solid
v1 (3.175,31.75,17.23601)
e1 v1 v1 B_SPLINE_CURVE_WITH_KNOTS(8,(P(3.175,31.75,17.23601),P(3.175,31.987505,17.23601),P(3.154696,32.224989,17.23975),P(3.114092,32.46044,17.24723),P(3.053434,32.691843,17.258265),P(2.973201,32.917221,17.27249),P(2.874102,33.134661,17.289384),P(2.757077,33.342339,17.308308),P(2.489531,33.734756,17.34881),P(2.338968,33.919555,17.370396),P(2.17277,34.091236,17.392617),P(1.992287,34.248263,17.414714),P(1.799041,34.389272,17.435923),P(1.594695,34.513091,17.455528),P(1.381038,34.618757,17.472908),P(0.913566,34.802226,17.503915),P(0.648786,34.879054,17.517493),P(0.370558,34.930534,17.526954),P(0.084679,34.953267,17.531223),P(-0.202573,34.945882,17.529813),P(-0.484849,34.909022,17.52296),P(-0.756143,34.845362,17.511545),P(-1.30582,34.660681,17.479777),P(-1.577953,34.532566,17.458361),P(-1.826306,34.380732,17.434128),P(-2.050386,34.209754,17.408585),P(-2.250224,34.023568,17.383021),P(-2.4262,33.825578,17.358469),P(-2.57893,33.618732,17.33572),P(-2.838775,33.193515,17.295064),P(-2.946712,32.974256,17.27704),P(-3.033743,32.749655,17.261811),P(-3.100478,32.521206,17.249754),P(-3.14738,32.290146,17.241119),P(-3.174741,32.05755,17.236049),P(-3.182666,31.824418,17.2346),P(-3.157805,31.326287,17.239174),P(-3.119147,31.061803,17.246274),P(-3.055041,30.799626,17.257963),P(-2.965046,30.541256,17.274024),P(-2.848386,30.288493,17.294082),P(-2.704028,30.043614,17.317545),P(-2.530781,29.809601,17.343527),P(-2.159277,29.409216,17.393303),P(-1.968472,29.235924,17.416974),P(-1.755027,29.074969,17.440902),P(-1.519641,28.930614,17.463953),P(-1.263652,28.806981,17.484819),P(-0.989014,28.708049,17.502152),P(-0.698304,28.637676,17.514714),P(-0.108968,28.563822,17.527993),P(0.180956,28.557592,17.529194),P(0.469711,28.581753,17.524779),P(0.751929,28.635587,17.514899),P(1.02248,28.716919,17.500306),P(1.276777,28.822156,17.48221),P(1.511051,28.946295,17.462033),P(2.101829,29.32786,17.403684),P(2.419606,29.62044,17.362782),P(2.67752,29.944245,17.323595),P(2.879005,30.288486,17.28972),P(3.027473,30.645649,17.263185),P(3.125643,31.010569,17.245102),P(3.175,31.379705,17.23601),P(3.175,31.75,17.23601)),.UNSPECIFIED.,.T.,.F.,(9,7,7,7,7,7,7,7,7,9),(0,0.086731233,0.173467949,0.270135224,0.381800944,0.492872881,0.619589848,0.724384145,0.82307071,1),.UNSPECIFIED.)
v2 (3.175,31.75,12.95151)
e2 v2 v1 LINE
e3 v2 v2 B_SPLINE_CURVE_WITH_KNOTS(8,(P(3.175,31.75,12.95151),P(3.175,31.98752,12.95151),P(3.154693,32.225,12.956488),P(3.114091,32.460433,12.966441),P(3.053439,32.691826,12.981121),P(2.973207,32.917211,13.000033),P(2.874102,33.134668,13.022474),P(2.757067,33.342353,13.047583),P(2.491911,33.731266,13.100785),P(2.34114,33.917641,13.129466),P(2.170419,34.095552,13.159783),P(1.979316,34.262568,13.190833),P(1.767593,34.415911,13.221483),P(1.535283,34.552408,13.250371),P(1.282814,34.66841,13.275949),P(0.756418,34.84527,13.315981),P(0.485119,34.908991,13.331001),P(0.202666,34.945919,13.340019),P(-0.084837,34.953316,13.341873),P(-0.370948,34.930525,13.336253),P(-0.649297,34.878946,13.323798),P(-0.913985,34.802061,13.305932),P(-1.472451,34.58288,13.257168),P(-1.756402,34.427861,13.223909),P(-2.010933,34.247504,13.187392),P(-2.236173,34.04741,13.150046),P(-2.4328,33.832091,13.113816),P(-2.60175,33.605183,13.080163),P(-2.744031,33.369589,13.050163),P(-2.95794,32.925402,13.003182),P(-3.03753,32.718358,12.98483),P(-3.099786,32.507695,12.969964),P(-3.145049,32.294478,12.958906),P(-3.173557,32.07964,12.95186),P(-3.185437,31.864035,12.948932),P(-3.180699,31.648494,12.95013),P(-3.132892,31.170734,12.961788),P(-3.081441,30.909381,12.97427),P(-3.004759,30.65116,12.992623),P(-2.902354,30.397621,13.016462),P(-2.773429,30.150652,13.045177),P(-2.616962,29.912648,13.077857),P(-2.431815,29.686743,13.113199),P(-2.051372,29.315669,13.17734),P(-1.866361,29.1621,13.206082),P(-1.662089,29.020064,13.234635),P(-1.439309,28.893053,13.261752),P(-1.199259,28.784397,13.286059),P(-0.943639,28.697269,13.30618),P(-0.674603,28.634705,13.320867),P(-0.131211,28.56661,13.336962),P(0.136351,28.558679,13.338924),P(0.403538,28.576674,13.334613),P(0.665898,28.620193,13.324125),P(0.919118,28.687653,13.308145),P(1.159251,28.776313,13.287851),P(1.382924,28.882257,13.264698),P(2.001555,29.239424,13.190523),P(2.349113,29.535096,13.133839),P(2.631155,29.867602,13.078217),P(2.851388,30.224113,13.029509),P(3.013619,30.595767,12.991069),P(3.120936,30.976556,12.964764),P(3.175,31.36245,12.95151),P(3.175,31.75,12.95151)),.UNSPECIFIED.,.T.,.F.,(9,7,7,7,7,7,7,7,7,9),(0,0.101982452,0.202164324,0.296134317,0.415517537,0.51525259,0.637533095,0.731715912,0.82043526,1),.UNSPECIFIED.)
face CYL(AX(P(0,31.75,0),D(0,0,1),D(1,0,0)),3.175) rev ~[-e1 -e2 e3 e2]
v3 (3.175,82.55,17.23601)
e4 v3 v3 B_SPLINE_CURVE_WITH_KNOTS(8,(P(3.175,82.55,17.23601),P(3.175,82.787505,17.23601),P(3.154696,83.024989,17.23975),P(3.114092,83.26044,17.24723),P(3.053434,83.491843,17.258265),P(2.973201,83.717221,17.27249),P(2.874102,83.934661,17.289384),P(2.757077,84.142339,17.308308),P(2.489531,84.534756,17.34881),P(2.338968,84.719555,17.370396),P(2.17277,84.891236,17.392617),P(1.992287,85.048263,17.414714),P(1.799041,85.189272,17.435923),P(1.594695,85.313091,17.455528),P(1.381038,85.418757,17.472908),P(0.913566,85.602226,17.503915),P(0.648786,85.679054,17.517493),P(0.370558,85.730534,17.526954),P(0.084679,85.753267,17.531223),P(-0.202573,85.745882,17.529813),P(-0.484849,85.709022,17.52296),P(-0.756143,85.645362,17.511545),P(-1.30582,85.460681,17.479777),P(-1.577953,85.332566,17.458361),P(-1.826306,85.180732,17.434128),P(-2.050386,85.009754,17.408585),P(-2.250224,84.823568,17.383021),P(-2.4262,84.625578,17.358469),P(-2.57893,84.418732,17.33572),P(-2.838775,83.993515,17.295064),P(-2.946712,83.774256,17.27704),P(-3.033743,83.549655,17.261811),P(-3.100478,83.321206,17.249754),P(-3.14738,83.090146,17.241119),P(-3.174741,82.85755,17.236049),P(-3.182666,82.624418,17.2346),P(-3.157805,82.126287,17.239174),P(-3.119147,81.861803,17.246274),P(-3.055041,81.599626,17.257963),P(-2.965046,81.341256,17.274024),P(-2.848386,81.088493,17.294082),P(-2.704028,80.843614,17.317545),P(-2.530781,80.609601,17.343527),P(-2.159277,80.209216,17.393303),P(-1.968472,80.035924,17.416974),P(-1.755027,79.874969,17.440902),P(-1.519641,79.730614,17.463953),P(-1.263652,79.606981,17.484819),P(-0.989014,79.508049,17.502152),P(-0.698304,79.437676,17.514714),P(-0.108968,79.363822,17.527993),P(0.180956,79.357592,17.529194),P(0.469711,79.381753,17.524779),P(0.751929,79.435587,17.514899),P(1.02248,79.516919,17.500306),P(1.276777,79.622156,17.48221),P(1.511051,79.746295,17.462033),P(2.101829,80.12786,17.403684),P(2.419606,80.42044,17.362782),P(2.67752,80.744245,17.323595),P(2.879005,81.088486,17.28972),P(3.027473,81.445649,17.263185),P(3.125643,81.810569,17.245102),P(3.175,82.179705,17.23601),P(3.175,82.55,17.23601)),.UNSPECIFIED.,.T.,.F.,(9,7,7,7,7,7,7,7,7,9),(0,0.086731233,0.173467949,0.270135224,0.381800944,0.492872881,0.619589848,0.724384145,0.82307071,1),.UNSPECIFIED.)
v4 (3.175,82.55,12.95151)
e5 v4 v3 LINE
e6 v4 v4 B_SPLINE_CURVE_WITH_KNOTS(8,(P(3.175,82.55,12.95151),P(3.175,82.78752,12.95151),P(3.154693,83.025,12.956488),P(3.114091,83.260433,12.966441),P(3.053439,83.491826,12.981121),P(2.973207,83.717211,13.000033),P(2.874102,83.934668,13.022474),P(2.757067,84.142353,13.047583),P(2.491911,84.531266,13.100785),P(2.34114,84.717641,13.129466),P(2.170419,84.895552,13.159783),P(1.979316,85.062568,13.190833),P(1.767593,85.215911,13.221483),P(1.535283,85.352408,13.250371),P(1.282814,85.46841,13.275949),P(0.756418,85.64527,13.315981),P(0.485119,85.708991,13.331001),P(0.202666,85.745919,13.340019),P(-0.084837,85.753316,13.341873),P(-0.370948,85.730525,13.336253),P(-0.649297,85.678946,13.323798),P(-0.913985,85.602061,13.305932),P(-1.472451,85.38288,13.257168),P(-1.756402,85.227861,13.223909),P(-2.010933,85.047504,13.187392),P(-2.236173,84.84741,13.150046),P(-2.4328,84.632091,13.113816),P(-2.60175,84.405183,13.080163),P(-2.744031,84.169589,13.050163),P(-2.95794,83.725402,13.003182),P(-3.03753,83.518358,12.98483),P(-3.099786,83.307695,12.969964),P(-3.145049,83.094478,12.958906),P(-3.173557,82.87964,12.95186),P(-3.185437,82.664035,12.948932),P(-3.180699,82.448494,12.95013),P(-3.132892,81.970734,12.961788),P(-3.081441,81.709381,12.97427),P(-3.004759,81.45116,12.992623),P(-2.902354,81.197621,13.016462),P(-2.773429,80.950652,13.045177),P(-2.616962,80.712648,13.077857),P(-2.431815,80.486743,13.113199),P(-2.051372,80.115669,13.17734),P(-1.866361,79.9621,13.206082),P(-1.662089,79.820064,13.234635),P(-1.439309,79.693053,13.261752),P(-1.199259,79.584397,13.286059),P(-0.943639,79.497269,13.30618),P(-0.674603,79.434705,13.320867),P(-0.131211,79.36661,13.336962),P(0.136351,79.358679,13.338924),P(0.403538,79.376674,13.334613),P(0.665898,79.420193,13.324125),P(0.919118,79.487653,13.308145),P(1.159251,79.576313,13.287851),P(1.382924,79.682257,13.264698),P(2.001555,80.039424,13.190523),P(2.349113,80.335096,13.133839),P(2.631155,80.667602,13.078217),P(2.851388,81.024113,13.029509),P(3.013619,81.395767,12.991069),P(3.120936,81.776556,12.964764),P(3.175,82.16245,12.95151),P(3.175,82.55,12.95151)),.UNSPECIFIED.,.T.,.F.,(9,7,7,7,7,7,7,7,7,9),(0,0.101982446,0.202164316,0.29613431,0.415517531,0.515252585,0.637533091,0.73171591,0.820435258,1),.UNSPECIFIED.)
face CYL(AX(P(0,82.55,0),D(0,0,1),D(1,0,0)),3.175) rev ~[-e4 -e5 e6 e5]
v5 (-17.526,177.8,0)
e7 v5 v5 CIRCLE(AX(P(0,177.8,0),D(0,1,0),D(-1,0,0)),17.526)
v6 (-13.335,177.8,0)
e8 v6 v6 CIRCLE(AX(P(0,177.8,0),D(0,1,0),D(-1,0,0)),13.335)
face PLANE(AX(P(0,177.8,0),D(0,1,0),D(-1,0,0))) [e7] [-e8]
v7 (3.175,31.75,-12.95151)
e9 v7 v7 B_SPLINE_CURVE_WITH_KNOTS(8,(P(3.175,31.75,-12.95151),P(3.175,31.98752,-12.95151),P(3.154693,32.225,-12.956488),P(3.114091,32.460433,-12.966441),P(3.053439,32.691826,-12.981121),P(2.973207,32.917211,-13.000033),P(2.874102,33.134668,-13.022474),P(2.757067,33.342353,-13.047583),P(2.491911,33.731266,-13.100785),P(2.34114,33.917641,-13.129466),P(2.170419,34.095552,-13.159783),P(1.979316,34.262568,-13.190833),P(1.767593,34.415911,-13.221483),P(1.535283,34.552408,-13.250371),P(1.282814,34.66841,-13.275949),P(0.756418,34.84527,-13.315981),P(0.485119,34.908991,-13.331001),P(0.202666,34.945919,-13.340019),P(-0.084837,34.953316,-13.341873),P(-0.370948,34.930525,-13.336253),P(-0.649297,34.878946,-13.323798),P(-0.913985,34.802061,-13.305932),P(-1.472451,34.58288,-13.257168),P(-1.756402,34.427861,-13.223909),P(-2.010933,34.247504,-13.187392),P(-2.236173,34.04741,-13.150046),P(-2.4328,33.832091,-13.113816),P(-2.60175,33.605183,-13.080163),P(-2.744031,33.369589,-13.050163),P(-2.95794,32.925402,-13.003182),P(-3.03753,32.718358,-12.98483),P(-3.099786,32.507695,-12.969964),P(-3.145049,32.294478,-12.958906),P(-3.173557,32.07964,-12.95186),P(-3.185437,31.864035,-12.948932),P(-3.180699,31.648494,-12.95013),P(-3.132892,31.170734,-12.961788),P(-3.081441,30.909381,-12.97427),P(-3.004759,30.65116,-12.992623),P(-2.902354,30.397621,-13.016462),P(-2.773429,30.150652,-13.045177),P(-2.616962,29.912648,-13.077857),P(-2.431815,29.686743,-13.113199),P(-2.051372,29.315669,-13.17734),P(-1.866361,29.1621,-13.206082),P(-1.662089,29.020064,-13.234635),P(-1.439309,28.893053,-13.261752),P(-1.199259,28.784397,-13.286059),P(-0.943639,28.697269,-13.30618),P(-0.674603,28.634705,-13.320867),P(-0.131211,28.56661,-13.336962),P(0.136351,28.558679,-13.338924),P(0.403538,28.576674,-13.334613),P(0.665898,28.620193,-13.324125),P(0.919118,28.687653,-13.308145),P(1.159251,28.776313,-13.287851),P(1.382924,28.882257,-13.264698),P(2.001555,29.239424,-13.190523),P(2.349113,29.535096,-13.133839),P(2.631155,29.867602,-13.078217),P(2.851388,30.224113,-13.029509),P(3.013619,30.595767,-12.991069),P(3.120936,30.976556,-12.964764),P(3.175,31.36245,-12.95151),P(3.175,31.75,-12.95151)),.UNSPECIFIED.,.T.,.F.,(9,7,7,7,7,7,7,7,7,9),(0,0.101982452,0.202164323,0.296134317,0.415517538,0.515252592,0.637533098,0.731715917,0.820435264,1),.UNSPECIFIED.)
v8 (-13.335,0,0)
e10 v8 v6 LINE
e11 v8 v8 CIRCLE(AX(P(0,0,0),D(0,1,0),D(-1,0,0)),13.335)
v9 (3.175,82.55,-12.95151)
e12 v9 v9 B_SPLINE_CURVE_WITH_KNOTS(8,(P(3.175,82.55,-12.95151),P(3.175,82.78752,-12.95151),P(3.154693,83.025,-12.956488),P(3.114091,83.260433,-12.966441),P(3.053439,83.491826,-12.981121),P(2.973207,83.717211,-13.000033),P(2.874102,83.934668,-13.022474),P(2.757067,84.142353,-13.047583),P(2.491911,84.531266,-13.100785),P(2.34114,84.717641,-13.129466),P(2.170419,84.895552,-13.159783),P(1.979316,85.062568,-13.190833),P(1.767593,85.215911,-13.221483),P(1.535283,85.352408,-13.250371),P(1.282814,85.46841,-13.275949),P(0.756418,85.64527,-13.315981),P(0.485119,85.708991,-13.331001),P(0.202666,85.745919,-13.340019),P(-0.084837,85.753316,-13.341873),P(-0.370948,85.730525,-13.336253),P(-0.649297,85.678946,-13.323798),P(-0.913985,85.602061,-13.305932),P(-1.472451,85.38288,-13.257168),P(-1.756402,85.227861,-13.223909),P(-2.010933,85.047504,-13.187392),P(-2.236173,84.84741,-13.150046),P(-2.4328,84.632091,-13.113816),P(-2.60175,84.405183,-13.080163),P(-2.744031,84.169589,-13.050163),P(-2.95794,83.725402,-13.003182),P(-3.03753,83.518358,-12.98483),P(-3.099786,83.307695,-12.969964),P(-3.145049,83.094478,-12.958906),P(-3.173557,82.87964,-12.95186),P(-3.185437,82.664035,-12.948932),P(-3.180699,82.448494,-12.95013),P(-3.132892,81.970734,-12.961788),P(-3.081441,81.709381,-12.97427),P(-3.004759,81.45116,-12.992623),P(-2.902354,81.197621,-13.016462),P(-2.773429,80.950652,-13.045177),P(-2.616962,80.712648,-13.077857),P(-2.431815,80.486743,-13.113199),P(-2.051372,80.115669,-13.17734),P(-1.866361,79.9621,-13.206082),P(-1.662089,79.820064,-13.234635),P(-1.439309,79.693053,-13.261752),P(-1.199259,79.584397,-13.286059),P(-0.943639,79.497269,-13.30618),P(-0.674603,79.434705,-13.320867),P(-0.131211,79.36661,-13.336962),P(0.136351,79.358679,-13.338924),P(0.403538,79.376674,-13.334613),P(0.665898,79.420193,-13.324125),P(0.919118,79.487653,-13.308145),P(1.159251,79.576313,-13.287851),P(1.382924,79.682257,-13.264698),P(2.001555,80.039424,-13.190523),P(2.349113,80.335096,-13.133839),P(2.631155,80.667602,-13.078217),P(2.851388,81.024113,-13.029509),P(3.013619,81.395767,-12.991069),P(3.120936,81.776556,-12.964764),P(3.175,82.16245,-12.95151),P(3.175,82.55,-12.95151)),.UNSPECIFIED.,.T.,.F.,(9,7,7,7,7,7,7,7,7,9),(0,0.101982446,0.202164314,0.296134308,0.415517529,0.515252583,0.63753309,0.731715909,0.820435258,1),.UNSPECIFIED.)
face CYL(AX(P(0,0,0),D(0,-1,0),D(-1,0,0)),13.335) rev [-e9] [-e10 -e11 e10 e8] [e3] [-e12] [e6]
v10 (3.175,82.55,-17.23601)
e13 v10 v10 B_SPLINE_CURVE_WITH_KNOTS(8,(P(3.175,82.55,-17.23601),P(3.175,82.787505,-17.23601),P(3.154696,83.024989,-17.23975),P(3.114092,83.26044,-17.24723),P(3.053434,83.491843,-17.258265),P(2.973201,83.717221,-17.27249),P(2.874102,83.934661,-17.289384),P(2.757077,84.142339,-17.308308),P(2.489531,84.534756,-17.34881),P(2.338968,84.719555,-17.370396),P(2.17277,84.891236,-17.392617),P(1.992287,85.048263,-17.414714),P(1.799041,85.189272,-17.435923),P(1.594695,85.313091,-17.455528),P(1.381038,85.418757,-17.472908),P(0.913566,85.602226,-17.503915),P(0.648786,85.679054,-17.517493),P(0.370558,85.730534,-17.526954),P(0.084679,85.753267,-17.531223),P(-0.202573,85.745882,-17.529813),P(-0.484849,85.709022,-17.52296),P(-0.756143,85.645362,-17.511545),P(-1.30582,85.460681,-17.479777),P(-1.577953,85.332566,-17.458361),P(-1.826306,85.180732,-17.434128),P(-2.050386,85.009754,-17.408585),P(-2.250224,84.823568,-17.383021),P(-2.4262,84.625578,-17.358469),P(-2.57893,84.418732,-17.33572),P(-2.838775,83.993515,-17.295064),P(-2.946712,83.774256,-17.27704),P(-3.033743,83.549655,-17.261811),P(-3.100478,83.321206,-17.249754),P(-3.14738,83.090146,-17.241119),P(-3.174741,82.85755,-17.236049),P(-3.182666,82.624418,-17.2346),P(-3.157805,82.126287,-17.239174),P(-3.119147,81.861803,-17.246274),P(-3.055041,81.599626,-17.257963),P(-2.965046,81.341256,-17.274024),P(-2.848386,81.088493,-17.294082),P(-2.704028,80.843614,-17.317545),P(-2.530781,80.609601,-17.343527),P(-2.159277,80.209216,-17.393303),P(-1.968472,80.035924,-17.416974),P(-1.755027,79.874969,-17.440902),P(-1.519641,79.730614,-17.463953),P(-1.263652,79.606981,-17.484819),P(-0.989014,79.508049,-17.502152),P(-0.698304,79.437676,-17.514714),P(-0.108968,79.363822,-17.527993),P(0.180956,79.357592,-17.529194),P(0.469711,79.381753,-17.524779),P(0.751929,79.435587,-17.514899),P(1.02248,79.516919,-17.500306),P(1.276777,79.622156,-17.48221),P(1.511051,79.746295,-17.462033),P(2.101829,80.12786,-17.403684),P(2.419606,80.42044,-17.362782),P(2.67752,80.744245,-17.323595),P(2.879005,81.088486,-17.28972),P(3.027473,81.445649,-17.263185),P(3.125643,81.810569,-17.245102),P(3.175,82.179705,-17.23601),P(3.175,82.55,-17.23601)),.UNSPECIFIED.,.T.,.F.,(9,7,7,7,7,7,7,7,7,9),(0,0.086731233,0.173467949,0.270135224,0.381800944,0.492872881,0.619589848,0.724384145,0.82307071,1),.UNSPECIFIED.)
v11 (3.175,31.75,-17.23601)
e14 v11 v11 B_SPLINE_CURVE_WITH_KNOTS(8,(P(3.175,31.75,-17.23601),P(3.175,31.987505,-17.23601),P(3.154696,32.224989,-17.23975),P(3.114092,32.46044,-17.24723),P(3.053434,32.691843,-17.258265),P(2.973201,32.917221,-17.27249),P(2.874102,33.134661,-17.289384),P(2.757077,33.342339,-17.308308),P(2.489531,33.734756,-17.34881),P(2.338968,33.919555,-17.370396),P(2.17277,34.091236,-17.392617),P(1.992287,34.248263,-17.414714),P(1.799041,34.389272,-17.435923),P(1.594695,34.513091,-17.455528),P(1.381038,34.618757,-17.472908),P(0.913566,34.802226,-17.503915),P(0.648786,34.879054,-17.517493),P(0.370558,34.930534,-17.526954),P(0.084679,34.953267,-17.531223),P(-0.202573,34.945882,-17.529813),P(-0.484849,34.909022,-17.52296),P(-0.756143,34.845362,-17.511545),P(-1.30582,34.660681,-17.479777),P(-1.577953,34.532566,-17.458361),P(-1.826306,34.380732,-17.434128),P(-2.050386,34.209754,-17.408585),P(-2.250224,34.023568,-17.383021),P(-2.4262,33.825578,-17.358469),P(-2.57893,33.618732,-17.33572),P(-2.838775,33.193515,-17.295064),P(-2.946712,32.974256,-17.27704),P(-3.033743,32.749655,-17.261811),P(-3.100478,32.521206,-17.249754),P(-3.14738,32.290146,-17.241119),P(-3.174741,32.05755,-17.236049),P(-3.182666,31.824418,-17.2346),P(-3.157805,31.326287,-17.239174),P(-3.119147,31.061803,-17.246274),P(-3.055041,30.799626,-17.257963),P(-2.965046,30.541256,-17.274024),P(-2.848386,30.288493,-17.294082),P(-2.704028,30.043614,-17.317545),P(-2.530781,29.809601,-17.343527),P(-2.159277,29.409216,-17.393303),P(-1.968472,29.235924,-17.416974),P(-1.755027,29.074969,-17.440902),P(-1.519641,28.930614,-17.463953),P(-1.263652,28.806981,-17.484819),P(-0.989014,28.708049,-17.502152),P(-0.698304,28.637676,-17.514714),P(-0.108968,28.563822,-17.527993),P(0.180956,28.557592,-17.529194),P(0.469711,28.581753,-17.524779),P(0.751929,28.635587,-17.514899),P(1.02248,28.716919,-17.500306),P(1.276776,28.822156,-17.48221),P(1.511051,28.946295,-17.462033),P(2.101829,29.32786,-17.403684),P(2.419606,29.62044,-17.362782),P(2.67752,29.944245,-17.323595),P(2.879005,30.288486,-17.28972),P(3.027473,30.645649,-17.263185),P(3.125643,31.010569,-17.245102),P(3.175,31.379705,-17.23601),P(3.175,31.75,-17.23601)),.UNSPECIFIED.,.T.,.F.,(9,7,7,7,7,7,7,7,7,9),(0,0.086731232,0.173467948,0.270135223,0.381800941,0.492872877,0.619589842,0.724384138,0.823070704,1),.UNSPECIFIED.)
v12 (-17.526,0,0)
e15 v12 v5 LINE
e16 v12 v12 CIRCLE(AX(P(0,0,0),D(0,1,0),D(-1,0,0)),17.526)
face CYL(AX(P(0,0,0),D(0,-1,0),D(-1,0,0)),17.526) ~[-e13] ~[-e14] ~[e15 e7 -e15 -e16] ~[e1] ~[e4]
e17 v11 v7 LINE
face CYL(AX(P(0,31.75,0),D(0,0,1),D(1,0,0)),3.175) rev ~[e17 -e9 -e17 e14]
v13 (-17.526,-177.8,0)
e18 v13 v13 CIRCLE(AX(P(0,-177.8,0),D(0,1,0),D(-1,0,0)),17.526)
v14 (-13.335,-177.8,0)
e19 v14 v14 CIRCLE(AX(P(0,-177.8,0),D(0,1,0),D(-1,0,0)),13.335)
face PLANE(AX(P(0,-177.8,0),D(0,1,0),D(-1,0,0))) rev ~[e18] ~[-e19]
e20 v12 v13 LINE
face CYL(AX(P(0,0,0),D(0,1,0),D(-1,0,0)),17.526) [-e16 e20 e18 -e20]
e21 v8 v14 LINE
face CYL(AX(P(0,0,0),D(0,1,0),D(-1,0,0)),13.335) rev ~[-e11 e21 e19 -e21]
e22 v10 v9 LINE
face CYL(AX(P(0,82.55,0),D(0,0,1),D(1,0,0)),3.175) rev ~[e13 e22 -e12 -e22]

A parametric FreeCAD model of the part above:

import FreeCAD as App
import Part
import Sketcher
Q = App.Units.Quantity

doc = App.newDocument("Part")
params = doc.addObject("Spreadsheet::Sheet", "Params")
for row, (alias, value) in enumerate([
    ("sketch1_diameter", "1.38 in"),
    ("sketch1_diameter2", "1.05 in"),
    ("pad1_length", "14 in"),
    ("sketch2_diameter", "0.25 in"),
], start=1):
    params.set(f"A{row}", alias)
    params.set(f"B{row}", "=" + value)
    params.setAlias(f"B{row}", alias)

body = doc.addObject("PartDesign::Body", "Body")

# Sketch on XZ plane
sketch1 = body.newObject("Sketcher::SketchObject", "Sketch")
sketch1.AttachmentSupport = (doc.getObject("XZ_Plane"), [""])
sketch1.MapMode = "FlatFace"
sketch1.addGeometry(Part.Circle(App.Vector(0, 0, 0), App.Vector(0, 0, 1), 18), False)
sketch1.addGeometry(Part.Circle(App.Vector(0, 0, 0), App.Vector(0, 0, 1), 13), False)
sketch1.addConstraint(Sketcher.Constraint("Coincident", 0, 3, -1, 1))
sketch1.addConstraint(Sketcher.Constraint("Coincident", 1, 3, -1, 1))
sketch1.addConstraint(Sketcher.Constraint("Diameter", 0, Q("1.38 in")))
sketch1.addConstraint(Sketcher.Constraint("Diameter", 1, Q("1.05 in")))
sketch1.setExpression("Constraints[2]", "Params.sketch1_diameter")
sketch1.setExpression("Constraints[3]", "Params.sketch1_diameter2")
pad1 = body.newObject("PartDesign::Pad", "Pad")
pad1.Profile = sketch1
pad1.setExpression("Length", "Params.pad1_length")
pad1.Midplane = True

# Sketch on XY plane
sketch2 = body.newObject("Sketcher::SketchObject", "Sketch001")
sketch2.AttachmentSupport = (doc.getObject("XY_Plane"), [""])
sketch2.MapMode = "FlatFace"
sketch2.addGeometry(Part.Circle(App.Vector(0, 31.8, 0), App.Vector(0, 0, 1), 3.2), False)
sketch2.addGeometry(Part.Circle(App.Vector(0, 82.5, 0), App.Vector(0, 0, 1), 3.2), False)
sketch2.addConstraint(Sketcher.Constraint("Equal", 0, 1))
sketch2.addConstraint(Sketcher.Constraint("PointOnObject", 0, 3, -2))
sketch2.addConstraint(Sketcher.Constraint("PointOnObject", 1, 3, -2))
sketch2.addConstraint(Sketcher.Constraint("Diameter", 0, Q("0.25 in")))
sketch2.addConstraint(Sketcher.Constraint("DistanceY", 0, 3, 1, 3, Q("2 in")))
sketch2.addConstraint(Sketcher.Constraint("DistanceY", -1, 1, 0, 3, Q("1.25 in")))
sketch2.setExpression("Constraints[3]", "Params.sketch2_diameter")
pocket1 = body.newObject("PartDesign::Pocket", "Pocket")
pocket1.Profile = sketch2
pocket1.Type = "ThroughAll"
pocket1.Midplane = True

doc.recompute()
